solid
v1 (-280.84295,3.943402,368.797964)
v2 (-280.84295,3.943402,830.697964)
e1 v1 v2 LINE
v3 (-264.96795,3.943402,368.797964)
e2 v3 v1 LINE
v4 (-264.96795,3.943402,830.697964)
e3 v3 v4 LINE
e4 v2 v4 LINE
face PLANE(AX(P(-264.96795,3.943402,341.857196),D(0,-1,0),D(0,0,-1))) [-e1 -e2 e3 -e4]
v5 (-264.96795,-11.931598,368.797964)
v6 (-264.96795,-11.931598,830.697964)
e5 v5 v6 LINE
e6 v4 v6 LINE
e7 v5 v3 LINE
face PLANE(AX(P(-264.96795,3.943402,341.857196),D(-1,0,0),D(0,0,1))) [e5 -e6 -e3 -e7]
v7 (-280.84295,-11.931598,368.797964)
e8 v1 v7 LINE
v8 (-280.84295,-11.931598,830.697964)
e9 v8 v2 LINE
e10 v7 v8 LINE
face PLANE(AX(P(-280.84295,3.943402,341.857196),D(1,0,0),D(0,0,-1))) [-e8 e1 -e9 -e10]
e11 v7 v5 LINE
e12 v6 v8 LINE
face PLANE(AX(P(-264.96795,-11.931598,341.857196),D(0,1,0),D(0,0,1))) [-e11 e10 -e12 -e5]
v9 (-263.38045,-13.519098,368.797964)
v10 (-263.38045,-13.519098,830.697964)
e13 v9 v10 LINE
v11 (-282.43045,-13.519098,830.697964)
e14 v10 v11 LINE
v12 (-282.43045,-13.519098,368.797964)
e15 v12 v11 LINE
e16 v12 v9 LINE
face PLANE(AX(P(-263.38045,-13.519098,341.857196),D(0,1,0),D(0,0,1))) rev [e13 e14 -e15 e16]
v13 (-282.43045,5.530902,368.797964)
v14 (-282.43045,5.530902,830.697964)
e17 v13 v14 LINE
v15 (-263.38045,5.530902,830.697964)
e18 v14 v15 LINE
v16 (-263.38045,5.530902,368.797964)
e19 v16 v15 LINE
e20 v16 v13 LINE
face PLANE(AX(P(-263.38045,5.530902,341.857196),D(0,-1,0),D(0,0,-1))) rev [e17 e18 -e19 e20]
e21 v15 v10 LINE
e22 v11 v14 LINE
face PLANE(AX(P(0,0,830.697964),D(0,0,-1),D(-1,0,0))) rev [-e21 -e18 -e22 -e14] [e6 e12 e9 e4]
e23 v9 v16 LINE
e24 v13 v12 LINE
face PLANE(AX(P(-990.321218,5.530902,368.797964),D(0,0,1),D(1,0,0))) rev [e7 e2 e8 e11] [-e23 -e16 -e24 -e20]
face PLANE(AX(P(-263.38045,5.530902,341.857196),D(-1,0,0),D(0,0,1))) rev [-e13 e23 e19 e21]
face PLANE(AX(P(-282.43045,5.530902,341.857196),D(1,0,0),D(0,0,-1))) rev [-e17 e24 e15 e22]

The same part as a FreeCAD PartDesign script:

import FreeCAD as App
import Part
import Sketcher

V = App.Vector
Q = App.Units.Quantity


def add_polygon(sketch, points):
    """Adds a closed chain of lines whose ends are joined by coincident constraints."""
    first, n = sketch.GeometryCount, len(points)
    for a, b in zip(points, points[1:] + points[:1]):
        sketch.addGeometry(Part.LineSegment(App.Vector(*a, 0), App.Vector(*b, 0)), False)
    for i in range(n):
        sketch.addConstraint(Sketcher.Constraint("Coincident", first + i, 2, first + (i + 1) % n, 1))

doc = App.newDocument("Part")
params = doc.addObject("Spreadsheet::Sheet", "Params")
for row, (alias, value) in enumerate([
    ("sketch1_width", "0.75 in"),
    ("sketch1_width2", "0.625 in"),
    ("pad1_length", "461.9 mm"),
], start=1):
    params.set(f"A{row}", alias)
    params.set(f"B{row}", "=" + value)
    params.setAlias(f"B{row}", alias)

body = doc.addObject("PartDesign::Body", "Body")

# Sketch on XY plane
sketch1 = body.newObject("Sketcher::SketchObject", "Sketch")
sketch1.AttachmentSupport = (doc.getObject("XY_Plane"), [""])
sketch1.MapMode = "FlatFace"
sketch1.AttachmentOffset = App.Placement(V(0, 0, 830.697964), App.Rotation())
add_polygon(sketch1, [(-263, 6), (-263, -14), (-282, -14), (-282, 6)])  # lines 0-3
add_polygon(sketch1, [(-281, -12), (-265, -12), (-265, 4), (-281, 4)])  # lines 4-7
sketch1.addConstraint(Sketcher.Constraint("Vertical", 0))
sketch1.addConstraint(Sketcher.Constraint("Horizontal", 1))
sketch1.addConstraint(Sketcher.Constraint("Vertical", 2))
sketch1.addConstraint(Sketcher.Constraint("Horizontal", 3))
sketch1.addConstraint(Sketcher.Constraint("Horizontal", 4))
sketch1.addConstraint(Sketcher.Constraint("Vertical", 5))
sketch1.addConstraint(Sketcher.Constraint("Horizontal", 6))
sketch1.addConstraint(Sketcher.Constraint("Vertical", 7))
sketch1.addConstraint(Sketcher.Constraint("Equal", 3, 0))
sketch1.addConstraint(Sketcher.Constraint("Equal", 6, 5))
sketch1.addConstraint(Sketcher.Constraint("DistanceX", 1, 2, 1, 1, Q("0.75 in")))
sketch1.addConstraint(Sketcher.Constraint("DistanceX", 4, 1, 4, 2, Q("0.625 in")))
sketch1.addConstraint(Sketcher.Constraint("DistanceX", 4, 2, 0, 2, Q("0.0625 in")))
sketch1.addConstraint(Sketcher.Constraint("DistanceY", 0, 2, 4, 2, Q("0.0625 in")))
sketch1.addConstraint(Sketcher.Constraint("DistanceY", 0, 2, -1, 1, Q("13.519098 mm")))
sketch1.addConstraint(Sketcher.Constraint("DistanceX", 0, 2, -1, 1, Q("263.38045 mm")))
sketch1.setExpression("Constraints[18]", "Params.sketch1_width")
sketch1.setExpression("Constraints[19]", "Params.sketch1_width2")
pad1 = body.newObject("PartDesign::Pad", "Pad")
pad1.Profile = sketch1
pad1.setExpression("Length", "Params.pad1_length")
pad1.Reversed = True

doc.recompute()
